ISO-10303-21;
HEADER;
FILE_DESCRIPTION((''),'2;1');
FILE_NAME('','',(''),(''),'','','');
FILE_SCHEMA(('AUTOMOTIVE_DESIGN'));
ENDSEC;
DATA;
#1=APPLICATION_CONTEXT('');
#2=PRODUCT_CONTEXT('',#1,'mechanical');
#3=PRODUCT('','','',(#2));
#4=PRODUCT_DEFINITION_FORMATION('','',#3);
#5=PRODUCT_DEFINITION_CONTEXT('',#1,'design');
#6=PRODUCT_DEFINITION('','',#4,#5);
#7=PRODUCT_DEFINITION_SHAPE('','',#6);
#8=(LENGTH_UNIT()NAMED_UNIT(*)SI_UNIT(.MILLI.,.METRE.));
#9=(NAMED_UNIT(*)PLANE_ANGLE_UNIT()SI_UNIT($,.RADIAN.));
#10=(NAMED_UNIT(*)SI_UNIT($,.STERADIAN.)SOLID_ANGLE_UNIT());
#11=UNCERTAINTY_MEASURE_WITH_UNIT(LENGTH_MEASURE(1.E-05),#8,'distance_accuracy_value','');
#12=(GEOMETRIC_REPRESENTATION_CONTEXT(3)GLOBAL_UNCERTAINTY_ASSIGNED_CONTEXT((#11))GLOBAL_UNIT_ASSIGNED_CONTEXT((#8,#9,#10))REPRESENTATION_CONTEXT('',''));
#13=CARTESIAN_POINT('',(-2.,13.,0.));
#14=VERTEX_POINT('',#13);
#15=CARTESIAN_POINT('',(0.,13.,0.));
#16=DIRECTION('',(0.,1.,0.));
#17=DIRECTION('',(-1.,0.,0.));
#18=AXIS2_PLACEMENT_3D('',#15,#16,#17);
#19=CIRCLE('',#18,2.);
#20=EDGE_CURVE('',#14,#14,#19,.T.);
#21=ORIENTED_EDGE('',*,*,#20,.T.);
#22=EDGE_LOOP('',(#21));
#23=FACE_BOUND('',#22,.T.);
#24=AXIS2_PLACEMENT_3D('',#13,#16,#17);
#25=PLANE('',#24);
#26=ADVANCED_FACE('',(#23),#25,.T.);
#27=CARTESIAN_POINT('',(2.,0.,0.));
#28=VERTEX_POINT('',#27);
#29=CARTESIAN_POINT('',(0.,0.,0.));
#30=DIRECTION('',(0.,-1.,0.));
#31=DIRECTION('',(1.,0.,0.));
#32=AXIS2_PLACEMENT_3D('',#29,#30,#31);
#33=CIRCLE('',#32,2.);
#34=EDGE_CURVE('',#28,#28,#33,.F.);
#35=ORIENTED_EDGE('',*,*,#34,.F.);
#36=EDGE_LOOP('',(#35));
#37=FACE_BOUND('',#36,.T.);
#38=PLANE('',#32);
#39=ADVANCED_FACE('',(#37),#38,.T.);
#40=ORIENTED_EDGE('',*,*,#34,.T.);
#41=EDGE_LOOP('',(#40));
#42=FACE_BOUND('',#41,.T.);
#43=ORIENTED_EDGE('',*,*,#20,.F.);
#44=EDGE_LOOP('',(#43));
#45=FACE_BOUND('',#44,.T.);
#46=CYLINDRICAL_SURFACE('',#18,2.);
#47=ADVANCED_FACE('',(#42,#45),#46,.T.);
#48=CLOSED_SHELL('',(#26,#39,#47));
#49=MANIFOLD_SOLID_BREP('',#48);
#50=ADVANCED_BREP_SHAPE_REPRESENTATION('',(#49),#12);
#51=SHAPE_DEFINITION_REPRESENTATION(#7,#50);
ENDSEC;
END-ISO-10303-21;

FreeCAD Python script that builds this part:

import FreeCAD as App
import Part
import Sketcher

V = App.Vector
Q = App.Units.Quantity


def add_polygon(sketch, points):
    """Adds a closed chain of lines whose ends are joined by coincident constraints."""
    first, n = sketch.GeometryCount, len(points)
    for a, b in zip(points, points[1:] + points[:1]):
        sketch.addGeometry(Part.LineSegment(App.Vector(*a, 0), App.Vector(*b, 0)), False)
    for i in range(n):
        sketch.addConstraint(Sketcher.Constraint("Coincident", first + i, 2, first + (i + 1) % n, 1))

doc = App.newDocument("Part")
params = doc.addObject("Spreadsheet::Sheet", "Params")
for row, (alias, value) in enumerate([
    ("sketch1_width", "3 mm"),
    ("sketch1_width2", "2 mm"),
    ("sketch1_height", "13 mm"),
    ("revolution_angle", "360 deg"),
    ("sketch2_diameter", "6 mm"),
    ("sketch2_diameter2", "4 mm"),
], start=1):
    params.set(f"A{row}", alias)
    params.set(f"B{row}", "=" + value)
    params.setAlias(f"B{row}", alias)

body = doc.addObject("PartDesign::Body", "Body")

# Sketch on XY plane
sketch1 = body.newObject("Sketcher::SketchObject", "Sketch")
sketch1.AttachmentSupport = (doc.getObject("XY_Plane"), [""])
sketch1.MapMode = "FlatFace"
add_polygon(sketch1, [(-3, 0), (0, 0), (0, 13), (-2, 13), (-2, 1), (-3, 1)])  # lines 0-5
sketch1.addConstraint(Sketcher.Constraint("Horizontal", 0))
sketch1.addConstraint(Sketcher.Constraint("Vertical", 1))
sketch1.addConstraint(Sketcher.Constraint("Horizontal", 2))
sketch1.addConstraint(Sketcher.Constraint("Vertical", 3))
sketch1.addConstraint(Sketcher.Constraint("Horizontal", 4))
sketch1.addConstraint(Sketcher.Constraint("Vertical", 5))
sketch1.addConstraint(Sketcher.Constraint("Coincident", 0, 2, -1, 1))
sketch1.addConstraint(Sketcher.Constraint("Equal", 4, 5))
sketch1.addConstraint(Sketcher.Constraint("DistanceX", 0, 1, 0, 2, Q("3 mm")))
sketch1.addConstraint(Sketcher.Constraint("DistanceX", 2, 2, 2, 1, Q("2 mm")))
sketch1.addConstraint(Sketcher.Constraint("DistanceY", 1, 1, 1, 2, Q("13 mm")))
sketch1.setExpression("Constraints[14]", "Params.sketch1_width")
sketch1.setExpression("Constraints[15]", "Params.sketch1_width2")
sketch1.setExpression("Constraints[16]", "Params.sketch1_height")
revolution = body.newObject("PartDesign::Revolution", "Revolution")
revolution.Profile = sketch1
revolution.ReferenceAxis = (sketch1, ["V_Axis"])
revolution.setExpression("Angle", "Params.revolution_angle")

# Sketch on XZ plane
sketch2 = body.newObject("Sketcher::SketchObject", "Sketch001")
sketch2.AttachmentSupport = (doc.getObject("XZ_Plane"), [""])
sketch2.MapMode = "FlatFace"
sketch2.AttachmentOffset = App.Placement(V(0, 0, -1), App.Rotation())
sketch2.addGeometry(Part.Circle(V(0, 0, 0), V(0, 0, 1), 3), False)
sketch2.addGeometry(Part.Circle(V(0, 0, 0), V(0, 0, 1), 2), False)
sketch2.addConstraint(Sketcher.Constraint("Coincident", 0, 3, -1, 1))
sketch2.addConstraint(Sketcher.Constraint("Coincident", 1, 3, -1, 1))
sketch2.addConstraint(Sketcher.Constraint("Diameter", 0, Q("6 mm")))
sketch2.addConstraint(Sketcher.Constraint("Diameter", 1, Q("4 mm")))
sketch2.setExpression("Constraints[2]", "Params.sketch2_diameter")
sketch2.setExpression("Constraints[3]", "Params.sketch2_diameter2")
pocket1 = body.newObject("PartDesign::Pocket", "Pocket")
pocket1.Profile = sketch2
pocket1.Type = "UpToFirst"
pocket1.Reversed = True

doc.recompute()
